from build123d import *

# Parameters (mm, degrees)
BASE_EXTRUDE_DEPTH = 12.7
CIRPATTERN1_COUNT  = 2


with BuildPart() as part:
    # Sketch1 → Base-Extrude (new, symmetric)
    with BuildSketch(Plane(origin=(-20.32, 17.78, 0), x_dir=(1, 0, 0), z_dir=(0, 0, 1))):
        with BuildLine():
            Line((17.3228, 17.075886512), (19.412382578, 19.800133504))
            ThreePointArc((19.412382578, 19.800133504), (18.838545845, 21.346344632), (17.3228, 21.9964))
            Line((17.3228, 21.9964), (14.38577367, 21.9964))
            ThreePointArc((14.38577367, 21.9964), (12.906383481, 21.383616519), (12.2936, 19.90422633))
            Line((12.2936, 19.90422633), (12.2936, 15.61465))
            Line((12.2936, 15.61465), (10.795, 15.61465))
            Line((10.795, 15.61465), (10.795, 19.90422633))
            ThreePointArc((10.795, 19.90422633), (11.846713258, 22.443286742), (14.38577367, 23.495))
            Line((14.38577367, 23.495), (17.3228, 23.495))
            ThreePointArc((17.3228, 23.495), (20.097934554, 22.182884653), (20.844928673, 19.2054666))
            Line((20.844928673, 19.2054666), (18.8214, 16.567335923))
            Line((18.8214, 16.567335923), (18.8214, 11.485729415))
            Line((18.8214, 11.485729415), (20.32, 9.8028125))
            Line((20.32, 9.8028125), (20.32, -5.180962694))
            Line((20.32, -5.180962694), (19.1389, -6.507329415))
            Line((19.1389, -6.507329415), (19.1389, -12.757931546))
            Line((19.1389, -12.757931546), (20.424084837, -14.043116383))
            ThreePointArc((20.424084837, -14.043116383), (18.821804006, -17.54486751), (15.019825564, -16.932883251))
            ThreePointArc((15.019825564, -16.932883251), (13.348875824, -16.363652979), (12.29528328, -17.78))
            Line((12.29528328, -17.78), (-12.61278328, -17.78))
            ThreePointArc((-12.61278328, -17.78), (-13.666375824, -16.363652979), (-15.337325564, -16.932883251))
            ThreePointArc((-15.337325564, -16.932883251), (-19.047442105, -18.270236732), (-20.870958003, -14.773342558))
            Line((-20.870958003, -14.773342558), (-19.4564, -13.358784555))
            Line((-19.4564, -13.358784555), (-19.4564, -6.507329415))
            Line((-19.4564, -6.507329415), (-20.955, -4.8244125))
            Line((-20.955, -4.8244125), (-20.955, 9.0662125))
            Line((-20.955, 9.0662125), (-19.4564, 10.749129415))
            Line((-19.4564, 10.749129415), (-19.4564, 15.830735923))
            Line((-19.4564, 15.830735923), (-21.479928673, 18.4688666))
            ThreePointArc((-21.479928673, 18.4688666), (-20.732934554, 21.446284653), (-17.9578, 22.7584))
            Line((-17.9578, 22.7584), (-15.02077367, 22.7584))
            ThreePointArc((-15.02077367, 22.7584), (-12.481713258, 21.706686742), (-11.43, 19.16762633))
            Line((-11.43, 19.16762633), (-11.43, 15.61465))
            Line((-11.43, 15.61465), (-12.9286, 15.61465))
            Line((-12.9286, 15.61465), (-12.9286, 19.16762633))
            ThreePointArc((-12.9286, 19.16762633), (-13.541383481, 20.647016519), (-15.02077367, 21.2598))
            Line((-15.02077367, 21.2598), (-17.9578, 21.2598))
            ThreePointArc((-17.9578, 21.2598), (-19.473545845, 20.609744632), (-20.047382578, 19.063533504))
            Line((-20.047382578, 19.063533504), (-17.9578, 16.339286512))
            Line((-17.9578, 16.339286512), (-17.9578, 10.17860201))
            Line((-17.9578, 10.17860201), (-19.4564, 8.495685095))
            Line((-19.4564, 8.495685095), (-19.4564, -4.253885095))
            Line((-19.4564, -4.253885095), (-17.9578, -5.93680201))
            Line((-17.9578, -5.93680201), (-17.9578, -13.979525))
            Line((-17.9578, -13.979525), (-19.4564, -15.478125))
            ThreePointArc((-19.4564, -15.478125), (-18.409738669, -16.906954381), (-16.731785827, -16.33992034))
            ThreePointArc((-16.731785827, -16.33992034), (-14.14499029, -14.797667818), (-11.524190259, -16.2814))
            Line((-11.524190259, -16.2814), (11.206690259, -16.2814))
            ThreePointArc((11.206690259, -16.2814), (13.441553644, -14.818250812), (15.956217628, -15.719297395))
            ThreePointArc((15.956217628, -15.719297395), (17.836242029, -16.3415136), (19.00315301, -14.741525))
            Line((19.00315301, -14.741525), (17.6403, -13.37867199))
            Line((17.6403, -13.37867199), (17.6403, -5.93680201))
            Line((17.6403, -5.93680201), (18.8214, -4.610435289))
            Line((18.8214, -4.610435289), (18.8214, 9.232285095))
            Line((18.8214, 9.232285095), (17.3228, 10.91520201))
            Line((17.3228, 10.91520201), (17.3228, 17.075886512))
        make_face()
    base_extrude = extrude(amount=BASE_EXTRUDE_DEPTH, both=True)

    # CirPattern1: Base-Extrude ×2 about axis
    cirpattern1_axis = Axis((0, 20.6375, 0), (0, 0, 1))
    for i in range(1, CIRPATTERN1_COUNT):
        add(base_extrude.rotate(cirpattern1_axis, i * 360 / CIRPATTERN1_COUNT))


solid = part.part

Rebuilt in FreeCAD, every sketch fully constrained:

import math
import FreeCAD as App
import Part
import Sketcher
Q = App.Units.Quantity

doc = App.newDocument("Part")
body = doc.addObject("PartDesign::Body", "Body")

# Sketch on XY plane
sketch1 = body.newObject("Sketcher::SketchObject", "Sketch")
sketch1.AttachmentSupport = (doc.getObject("XY_Plane"), [""])
sketch1.MapMode = "FlatFace"
sketch1.addGeometry(Part.LineSegment(App.Vector(-0.907617, 37.580134, 0), App.Vector(-2.9972, 34.855887, 0)), False)
sketch1.addGeometry(Part.LineSegment(App.Vector(-2.9972, 34.855887, 0), App.Vector(-2.9972, 28.695202, 0)), False)
sketch1.addGeometry(Part.LineSegment(App.Vector(-2.9972, 28.695202, 0), App.Vector(-1.4986, 27.012285, 0)), False)
sketch1.addGeometry(Part.LineSegment(App.Vector(-1.4986, 27.012285, 0), App.Vector(-1.4986, 13.169565, 0)), False)
sketch1.addGeometry(Part.LineSegment(App.Vector(-1.4986, 13.169565, 0), App.Vector(-2.6797, 11.843198, 0)), False)
sketch1.addGeometry(Part.LineSegment(App.Vector(-2.6797, 11.843198, 0), App.Vector(-2.6797, 4.401328, 0)), False)
sketch1.addGeometry(Part.LineSegment(App.Vector(-2.6797, 4.401328, 0), App.Vector(-1.316847, 3.038475, 0)), False)
sketch1.addGeometry(Part.ArcOfCircle(Part.Circle(App.Vector(-2.9972, 3.038475, 0), App.Vector(0, 0, 1), 1.680353), math.radians(-144.416759), math.radians(0)), False)
sketch1.addGeometry(Part.ArcOfCircle(Part.Circle(App.Vector(-6.526189, -0.014679, 0), App.Vector(0, 0, 1), 2.9972), math.radians(43.823568), math.radians(149.675456)), False)
sketch1.addGeometry(Part.LineSegment(App.Vector(-9.11331, 1.4986, 0), App.Vector(-31.84419, 1.4986, 0)), False)
sketch1.addGeometry(Part.ArcOfCircle(Part.Circle(App.Vector(-34.431311, -0.014679, 0), App.Vector(0, 0, 1), 2.9972), math.radians(30.324544), math.radians(150.963124)), False)
sketch1.addGeometry(Part.ArcOfCircle(Part.Circle(App.Vector(-38.2778, 2.301875, 0), App.Vector(0, 0, 1), 1.4986), math.radians(180), math.radians(324.895679)), False)
sketch1.addGeometry(Part.LineSegment(App.Vector(-39.7764, 2.301875, 0), App.Vector(-38.2778, 3.800475, 0)), False)
sketch1.addGeometry(Part.LineSegment(App.Vector(-38.2778, 3.800475, 0), App.Vector(-38.2778, 11.843198, 0)), False)
sketch1.addGeometry(Part.LineSegment(App.Vector(-38.2778, 11.843198, 0), App.Vector(-39.7764, 13.526115, 0)), False)
sketch1.addGeometry(Part.LineSegment(App.Vector(-39.7764, 13.526115, 0), App.Vector(-39.7764, 26.275685, 0)), False)
sketch1.addGeometry(Part.LineSegment(App.Vector(-39.7764, 26.275685, 0), App.Vector(-38.2778, 27.958602, 0)), False)
sketch1.addGeometry(Part.LineSegment(App.Vector(-38.2778, 27.958602, 0), App.Vector(-38.2778, 34.119287, 0)), False)
sketch1.addGeometry(Part.LineSegment(App.Vector(-38.2778, 34.119287, 0), App.Vector(-40.367383, 36.843534, 0)), False)
sketch1.addGeometry(Part.ArcOfCircle(Part.Circle(App.Vector(-38.2778, 36.947626, 0), App.Vector(0, 0, 1), 2.092174), math.radians(90), math.radians(182.851839)), False)
sketch1.addGeometry(Part.LineSegment(App.Vector(-38.2778, 39.0398, 0), App.Vector(-35.340774, 39.0398, 0)), False)
sketch1.addGeometry(Part.ArcOfCircle(Part.Circle(App.Vector(-35.340774, 36.947626, 0), App.Vector(0, 0, 1), 2.092174), math.radians(0), math.radians(90)), False)
sketch1.addGeometry(Part.LineSegment(App.Vector(-33.2486, 36.947626, 0), App.Vector(-33.2486, 33.39465, 0)), False)
sketch1.addGeometry(Part.LineSegment(App.Vector(-33.2486, 33.39465, 0), App.Vector(-31.75, 33.39465, 0)), False)
sketch1.addGeometry(Part.LineSegment(App.Vector(-31.75, 33.39465, 0), App.Vector(-31.75, 36.947626, 0)), False)
sketch1.addGeometry(Part.ArcOfCircle(Part.Circle(App.Vector(-35.340774, 36.947626, 0), App.Vector(0, 0, 1), 3.590774), math.radians(0), math.radians(90)), False)
sketch1.addGeometry(Part.LineSegment(App.Vector(-35.340774, 40.5384, 0), App.Vector(-38.2778, 40.5384, 0)), False)
sketch1.addGeometry(Part.ArcOfCircle(Part.Circle(App.Vector(-38.2778, 36.947626, 0), App.Vector(0, 0, 1), 3.590774), math.radians(90), math.radians(191.221279)), False)
sketch1.addGeometry(Part.LineSegment(App.Vector(-41.799929, 36.248867, 0), App.Vector(-39.7764, 33.610736, 0)), False)
sketch1.addGeometry(Part.LineSegment(App.Vector(-39.7764, 33.610736, 0), App.Vector(-39.7764, 28.529129, 0)), False)
sketch1.addGeometry(Part.LineSegment(App.Vector(-39.7764, 28.529129, 0), App.Vector(-41.275, 26.846213, 0)), False)
sketch1.addGeometry(Part.LineSegment(App.Vector(-41.275, 26.846213, 0), App.Vector(-41.275, 12.955588, 0)), False)
sketch1.addGeometry(Part.LineSegment(App.Vector(-41.275, 12.955588, 0), App.Vector(-39.7764, 11.272671, 0)), False)
sketch1.addGeometry(Part.LineSegment(App.Vector(-39.7764, 11.272671, 0), App.Vector(-39.7764, 4.421215, 0)), False)
sketch1.addGeometry(Part.LineSegment(App.Vector(-39.7764, 4.421215, 0), App.Vector(-41.190958, 3.006657, 0)), False)
sketch1.addGeometry(Part.ArcOfCircle(Part.Circle(App.Vector(-38.2778, 2.301875, 0), App.Vector(0, 0, 1), 2.9972), math.radians(166.399715), math.radians(330.963124)), False)
sketch1.addGeometry(Part.ArcOfCircle(Part.Circle(App.Vector(-34.431311, -0.014679, 0), App.Vector(0, 0, 1), 1.4986), math.radians(0.561214), math.radians(144.895679)), False)
sketch1.addGeometry(Part.LineSegment(App.Vector(-32.932783, 0, 0), App.Vector(-8.024717, 0, 0)), False)
sketch1.addGeometry(Part.ArcOfCircle(Part.Circle(App.Vector(-6.526189, -0.014679, 0), App.Vector(0, 0, 1), 1.4986), math.radians(35.104321), math.radians(179.438786)), False)
sketch1.addGeometry(Part.ArcOfCircle(Part.Circle(App.Vector(-2.9972, 3.038475, 0), App.Vector(0, 0, 1), 3.178953), math.radians(-136.422641), math.radians(12.691277)), False)
sketch1.addGeometry(Part.LineSegment(App.Vector(0.104085, 3.736884, 0), App.Vector(-1.1811, 5.022068, 0)), False)
sketch1.addGeometry(Part.LineSegment(App.Vector(-1.1811, 5.022068, 0), App.Vector(-1.1811, 11.272671, 0)), False)
sketch1.addGeometry(Part.LineSegment(App.Vector(-1.1811, 11.272671, 0), App.Vector(0, 12.599037, 0)), False)
sketch1.addGeometry(Part.LineSegment(App.Vector(0, 12.599037, 0), App.Vector(0, 27.582812, 0)), False)
sketch1.addGeometry(Part.LineSegment(App.Vector(0, 27.582812, 0), App.Vector(-1.4986, 29.265729, 0)), False)
sketch1.addGeometry(Part.LineSegment(App.Vector(-1.4986, 29.265729, 0), App.Vector(-1.4986, 34.347336, 0)), False)
sketch1.addGeometry(Part.LineSegment(App.Vector(-1.4986, 34.347336, 0), App.Vector(0.524929, 36.985467, 0)), False)
sketch1.addGeometry(Part.ArcOfCircle(Part.Circle(App.Vector(-2.9972, 37.684226, 0), App.Vector(0, 0, 1), 3.590774), math.radians(-11.221279), math.radians(90)), False)
sketch1.addGeometry(Part.LineSegment(App.Vector(-2.9972, 41.275, 0), App.Vector(-5.934226, 41.275, 0)), False)
sketch1.addGeometry(Part.ArcOfCircle(Part.Circle(App.Vector(-5.934226, 37.684226, 0), App.Vector(0, 0, 1), 3.590774), math.radians(90), math.radians(180)), False)
sketch1.addGeometry(Part.LineSegment(App.Vector(-9.525, 37.684226, 0), App.Vector(-9.525, 33.39465, 0)), False)
sketch1.addGeometry(Part.LineSegment(App.Vector(-9.525, 33.39465, 0), App.Vector(-8.0264, 33.39465, 0)), False)
sketch1.addGeometry(Part.LineSegment(App.Vector(-8.0264, 33.39465, 0), App.Vector(-8.0264, 37.684226, 0)), False)
sketch1.addGeometry(Part.ArcOfCircle(Part.Circle(App.Vector(-5.934226, 37.684226, 0), App.Vector(0, 0, 1), 2.092174), math.radians(90), math.radians(180)), False)
sketch1.addGeometry(Part.LineSegment(App.Vector(-5.934226, 39.7764, 0), App.Vector(-2.9972, 39.7764, 0)), False)
sketch1.addGeometry(Part.ArcOfCircle(Part.Circle(App.Vector(-2.9972, 37.684226, 0), App.Vector(0, 0, 1), 2.092174), math.radians(-2.851839), math.radians(90)), False)
sketch1.addConstraint(Sketcher.Constraint("Coincident", 0, 2, 1, 1))
sketch1.addConstraint(Sketcher.Constraint("Coincident", 1, 2, 2, 1))
sketch1.addConstraint(Sketcher.Constraint("Coincident", 2, 2, 3, 1))
sketch1.addConstraint(Sketcher.Constraint("Coincident", 3, 2, 4, 1))
sketch1.addConstraint(Sketcher.Constraint("Coincident", 4, 2, 5, 1))
sketch1.addConstraint(Sketcher.Constraint("Coincident", 5, 2, 6, 1))
sketch1.addConstraint(Sketcher.Constraint("Coincident", 6, 2, 7, 2))
sketch1.addConstraint(Sketcher.Constraint("Coincident", 7, 1, 8, 1))
sketch1.addConstraint(Sketcher.Constraint("Coincident", 8, 2, 9, 1))
sketch1.addConstraint(Sketcher.Constraint("Coincident", 9, 2, 10, 1))
sketch1.addConstraint(Sketcher.Constraint("Coincident", 10, 2, 11, 2))
sketch1.addConstraint(Sketcher.Constraint("Coincident", 11, 1, 12, 1))
sketch1.addConstraint(Sketcher.Constraint("Coincident", 12, 2, 13, 1))
sketch1.addConstraint(Sketcher.Constraint("Coincident", 13, 2, 14, 1))
sketch1.addConstraint(Sketcher.Constraint("Coincident", 14, 2, 15, 1))
sketch1.addConstraint(Sketcher.Constraint("Coincident", 15, 2, 16, 1))
sketch1.addConstraint(Sketcher.Constraint("Coincident", 16, 2, 17, 1))
sketch1.addConstraint(Sketcher.Constraint("Coincident", 17, 2, 18, 1))
sketch1.addConstraint(Sketcher.Constraint("Coincident", 18, 2, 19, 2))
sketch1.addConstraint(Sketcher.Constraint("Tangent", 19, 1, 20, 1))
sketch1.addConstraint(Sketcher.Constraint("Tangent", 20, 2, 21, 2))
sketch1.addConstraint(Sketcher.Constraint("Tangent", 21, 1, 22, 1))
sketch1.addConstraint(Sketcher.Constraint("Coincident", 22, 2, 23, 1))
sketch1.addConstraint(Sketcher.Constraint("Coincident", 23, 2, 24, 1))
sketch1.addConstraint(Sketcher.Constraint("Tangent", 24, 2, 25, 1))
sketch1.addConstraint(Sketcher.Constraint("Tangent", 25, 2, 26, 1))
sketch1.addConstraint(Sketcher.Constraint("Tangent", 26, 2, 27, 1))
sketch1.addConstraint(Sketcher.Constraint("Coincident", 27, 2, 28, 1))
sketch1.addConstraint(Sketcher.Constraint("Coincident", 28, 2, 29, 1))
sketch1.addConstraint(Sketcher.Constraint("Coincident", 29, 2, 30, 1))
sketch1.addConstraint(Sketcher.Constraint("Coincident", 30, 2, 31, 1))
sketch1.addConstraint(Sketcher.Constraint("Coincident", 31, 2, 32, 1))
sketch1.addConstraint(Sketcher.Constraint("Coincident", 32, 2, 33, 1))
sketch1.addConstraint(Sketcher.Constraint("Coincident", 33, 2, 34, 1))
sketch1.addConstraint(Sketcher.Constraint("Coincident", 34, 2, 35, 1))
sketch1.addConstraint(Sketcher.Constraint("Coincident", 35, 2, 36, 2))
sketch1.addConstraint(Sketcher.Constraint("Coincident", 36, 1, 37, 1))
sketch1.addConstraint(Sketcher.Constraint("Coincident", 37, 2, 38, 2))
sketch1.addConstraint(Sketcher.Constraint("Coincident", 38, 1, 39, 1))
sketch1.addConstraint(Sketcher.Constraint("Coincident", 39, 2, 40, 1))
sketch1.addConstraint(Sketcher.Constraint("Coincident", 40, 2, 41, 1))
sketch1.addConstraint(Sketcher.Constraint("Coincident", 41, 2, 42, 1))
sketch1.addConstraint(Sketcher.Constraint("Coincident", 42, 2, 43, 1))
sketch1.addConstraint(Sketcher.Constraint("Coincident", 43, 2, 44, 1))
sketch1.addConstraint(Sketcher.Constraint("Coincident", 44, 2, 45, 1))
sketch1.addConstraint(Sketcher.Constraint("Coincident", 45, 2, 46, 1))
sketch1.addConstraint(Sketcher.Constraint("Coincident", 46, 2, 47, 1))
sketch1.addConstraint(Sketcher.Constraint("Tangent", 47, 2, 48, 1))
sketch1.addConstraint(Sketcher.Constraint("Tangent", 48, 2, 49, 1))
sketch1.addConstraint(Sketcher.Constraint("Tangent", 49, 2, 50, 1))
sketch1.addConstraint(Sketcher.Constraint("Coincident", 50, 2, 51, 1))
sketch1.addConstraint(Sketcher.Constraint("Coincident", 51, 2, 52, 1))
sketch1.addConstraint(Sketcher.Constraint("Tangent", 52, 2, 53, 2))
sketch1.addConstraint(Sketcher.Constraint("Tangent", 53, 1, 54, 1))
sketch1.addConstraint(Sketcher.Constraint("Tangent", 54, 2, 55, 2))
sketch1.addConstraint(Sketcher.Constraint("Coincident", 55, 1, 0, 1))
sketch1.addConstraint(Sketcher.Constraint("Vertical", 1))
sketch1.addConstraint(Sketcher.Constraint("Vertical", 3))
sketch1.addConstraint(Sketcher.Constraint("Vertical", 5))
sketch1.addConstraint(Sketcher.Constraint("Horizontal", 9))
sketch1.addConstraint(Sketcher.Constraint("Vertical", 13))
sketch1.addConstraint(Sketcher.Constraint("Vertical", 15))
sketch1.addConstraint(Sketcher.Constraint("Vertical", 17))
sketch1.addConstraint(Sketcher.Constraint("Horizontal", 20))
sketch1.addConstraint(Sketcher.Constraint("Vertical", 22))
sketch1.addConstraint(Sketcher.Constraint("Horizontal", 23))
sketch1.addConstraint(Sketcher.Constraint("Vertical", 24))
sketch1.addConstraint(Sketcher.Constraint("Horizontal", 26))
sketch1.addConstraint(Sketcher.Constraint("Vertical", 29))
sketch1.addConstraint(Sketcher.Constraint("Vertical", 31))
sketch1.addConstraint(Sketcher.Constraint("Vertical", 33))
sketch1.addConstraint(Sketcher.Constraint("Horizontal", 37))
sketch1.addConstraint(Sketcher.Constraint("Vertical", 41))
sketch1.addConstraint(Sketcher.Constraint("Vertical", 43))
sketch1.addConstraint(Sketcher.Constraint("Vertical", 45))
sketch1.addConstraint(Sketcher.Constraint("Horizontal", 48))
sketch1.addConstraint(Sketcher.Constraint("Vertical", 50))
sketch1.addConstraint(Sketcher.Constraint("Horizontal", 51))
sketch1.addConstraint(Sketcher.Constraint("Vertical", 52))
sketch1.addConstraint(Sketcher.Constraint("Horizontal", 54))
sketch1.addConstraint(Sketcher.Constraint("Coincident", 25, 3, 21, 3))
sketch1.addConstraint(Sketcher.Constraint("Coincident", 27, 3, 19, 3))
sketch1.addConstraint(Sketcher.Constraint("Coincident", 35, 3, 11, 3))
sketch1.addConstraint(Sketcher.Constraint("Coincident", 36, 3, 10, 3))
sketch1.addConstraint(Sketcher.Constraint("Coincident", 38, 3, 8, 3))
sketch1.addConstraint(Sketcher.Constraint("Coincident", 39, 3, 7, 3))
sketch1.addConstraint(Sketcher.Constraint("Coincident", 53, 3, 49, 3))
sketch1.addConstraint(Sketcher.Constraint("Coincident", 55, 3, 47, 3))
sketch1.addConstraint(Sketcher.Constraint("Equal", 8, 10))
sketch1.addConstraint(Sketcher.Constraint("Equal", 19, 21))
sketch1.addConstraint(Sketcher.Constraint("Equal", 10, 35))
sketch1.addConstraint(Sketcher.Constraint("Equal", 11, 36))
sketch1.addConstraint(Sketcher.Constraint("Equal", 36, 38))
sketch1.addConstraint(Sketcher.Constraint("Equal", 27, 47))
sketch1.addConstraint(Sketcher.Constraint("Equal", 47, 49))
sketch1.addConstraint(Sketcher.Constraint("Equal", 21, 53))
sketch1.addConstraint(Sketcher.Constraint("PointOnObject", 36, 1, -1))
sketch1.addConstraint(Sketcher.Constraint("PointOnObject", 42, 2, -2))
sketch1.addConstraint(Sketcher.Constraint("Perpendicular", 6, 12))
sketch1.addConstraint(Sketcher.Constraint("Parallel", 2, 14))
sketch1.addConstraint(Sketcher.Constraint("Parallel", 4, 16))
sketch1.addConstraint(Sketcher.Constraint("Parallel", 18, 28))
sketch1.addConstraint(Sketcher.Constraint("Parallel", 16, 30))
sketch1.addConstraint(Sketcher.Constraint("Parallel", 14, 32))
sketch1.addConstraint(Sketcher.Constraint("Parallel", 12, 34))
sketch1.addConstraint(Sketcher.Constraint("Perpendicular", 34, 40))
sketch1.addConstraint(Sketcher.Constraint("Parallel", 30, 42))
sketch1.addConstraint(Sketcher.Constraint("Parallel", 32, 44))
sketch1.addConstraint(Sketcher.Constraint("Parallel", 0, 46))
sketch1.addConstraint(Sketcher.Constraint("Horizontal", 8, 3, 10, 3))
sketch1.addConstraint(Sketcher.Constraint("Horizontal", 39, 3, 6, 2))
sketch1.addConstraint(Sketcher.Constraint("Horizontal", 35, 3, 11, 1))
sketch1.addConstraint(Sketcher.Constraint("Horizontal", 4, 2, 13, 2))
sketch1.addConstraint(Sketcher.Constraint("Horizontal", 35, 2, 38, 1))
sketch1.addConstraint(Sketcher.Constraint("Horizontal", 32, 2, 41, 2))
sketch1.addConstraint(Sketcher.Constraint("Horizontal", 23, 2, 50, 2))
sketch1.addConstraint(Sketcher.Constraint("Vertical", 11, 3, 19, 3))
sketch1.addConstraint(Sketcher.Constraint("Vertical", 39, 3, 47, 3))
sketch1.addConstraint(Sketcher.Constraint("Vertical", 55, 3, 0, 2))
sketch1.addConstraint(Sketcher.Constraint("Vertical", 35, 3, 12, 2))
sketch1.addConstraint(Sketcher.Constraint("Vertical", 11, 1, 14, 2))
sketch1.addConstraint(Sketcher.Constraint("Vertical", 13, 2, 16, 2))
sketch1.addConstraint(Sketcher.Constraint("Vertical", 15, 2, 28, 2))
sketch1.addConstraint(Sketcher.Constraint("Vertical", 29, 2, 32, 2))
sketch1.addConstraint(Sketcher.Constraint("Vertical", 3, 2, 44, 2))
sketch1.addConstraint(Sketcher.Constraint("Equal", 26, 48))
sketch1.addConstraint(Sketcher.Constraint("Equal", 1, 17))
sketch1.addConstraint(Sketcher.Constraint("Equal", 29, 45))
sketch1.addConstraint(Sketcher.Constraint("Equal", 2, 14))
sketch1.addConstraint(Sketcher.Constraint("Equal", 14, 16))
sketch1.addConstraint(Sketcher.Constraint("Equal", 0, 18))
sketch1.addConstraint(Sketcher.Constraint("Equal", 16, 30))
sketch1.addConstraint(Sketcher.Constraint("Equal", 4, 42))
sketch1.addConstraint(Sketcher.Constraint("Equal", 32, 44))
sketch1.addConstraint(Sketcher.Constraint("Equal", 28, 46))
sketch1.addConstraint(Sketcher.Constraint("Angle", 6, Q("-45 deg")))
sketch1.addConstraint(Sketcher.Constraint("Radius", 8, Q("0.118 in")))
sketch1.addConstraint(Sketcher.Constraint("Radius", 11, Q("0.059 in")))
sketch1.addConstraint(Sketcher.Constraint("DistanceX", 23, 1, 23, 2, Q("0.059 in")))
sketch1.addConstraint(Sketcher.Constraint("DistanceY", 31, 2, 31, 1, Q("0.546875 in")))
sketch1.addConstraint(Sketcher.Constraint("DistanceX", 23, 2, -1, 1, Q("1.25 in")))
sketch1.addConstraint(Sketcher.Constraint("DistanceX", 11, 3, -1, 1, Q("1.507 in")))
sketch1.addConstraint(Sketcher.Constraint("DistanceY", -1, 1, 8, 2, Q("0.059 in")))
sketch1.addConstraint(Sketcher.Constraint("DistanceY", -1, 1, 19, 1, Q("1.537 in")))
sketch1.addConstraint(Sketcher.Constraint("DistanceY", -1, 1, 47, 2, Q("1.625 in")))
sketch1.addConstraint(Sketcher.Constraint("DistanceX", 4, 2, -1, 1, Q("0.1055 in")))
sketch1.addConstraint(Sketcher.Constraint("Radius", 7, 1.680353))
sketch1.addConstraint(Sketcher.Constraint("Radius", 19, 2.092174))
sketch1.addConstraint(Sketcher.Constraint("Radius", 39, 3.178953))
sketch1.addConstraint(Sketcher.Constraint("DistanceX", 9, 2, 9, 1, 22.730881))
sketch1.addConstraint(Sketcher.Constraint("DistanceY", 3, 2, 3, 1, 13.84272))
sketch1.addConstraint(Sketcher.Constraint("DistanceY", 5, 2, 5, 1, 7.44187))
sketch1.addConstraint(Sketcher.Constraint("DistanceY", 15, 1, 15, 2, 12.74957))
sketch1.addConstraint(Sketcher.Constraint("Distance", 4, 1.77602))
sketch1.addConstraint(Sketcher.Constraint("DistanceX", 37, 1, 37, 2, 24.908067))
sketch1.addConstraint(Sketcher.Constraint("DistanceY", 1, 2, 1, 1, 6.160685))
sketch1.addConstraint(Sketcher.Constraint("DistanceY", 13, 1, 13, 2, 8.042723))
sketch1.addConstraint(Sketcher.Constraint("DistanceY", 22, 2, 22, 1, 3.552976))
sketch1.addConstraint(Sketcher.Constraint("DistanceY", 29, 2, 29, 1, 5.081607))
sketch1.addConstraint(Sketcher.Constraint("DistanceY", 33, 2, 33, 1, 6.851455))
sketch1.addConstraint(Sketcher.Constraint("DistanceY", 41, 1, 41, 2, 6.250602))
sketch1.addConstraint(Sketcher.Constraint("DistanceX", 8, 3, -1, 1, 6.526189))
sketch1.addConstraint(Sketcher.Constraint("DistanceX", 27, 2, -1, 1, 41.799929))
sketch1.addConstraint(Sketcher.Constraint("DistanceY", -1, 1, 29, 2, 28.529129))
pad1 = body.newObject("PartDesign::Pad", "Pad")
pad1.Profile = sketch1
pad1.Length = Q("1 in")
pad1.Midplane = True
doc.recompute()

datumline = body.newObject("PartDesign::Line", "DatumLine")
datumline.Placement = App.Placement(App.Vector(0, 20.6375, 0), App.Rotation(App.Vector(0, 0, 1), App.Vector(0, 0, 1)))
polarpattern = body.newObject("PartDesign::PolarPattern", "PolarPattern")
polarpattern.Originals = [pad1]
polarpattern.Axis = (datumline, [""])
polarpattern.Angle = 360
polarpattern.Occurrences = 2
body.Tip = polarpattern

doc.recompute()
